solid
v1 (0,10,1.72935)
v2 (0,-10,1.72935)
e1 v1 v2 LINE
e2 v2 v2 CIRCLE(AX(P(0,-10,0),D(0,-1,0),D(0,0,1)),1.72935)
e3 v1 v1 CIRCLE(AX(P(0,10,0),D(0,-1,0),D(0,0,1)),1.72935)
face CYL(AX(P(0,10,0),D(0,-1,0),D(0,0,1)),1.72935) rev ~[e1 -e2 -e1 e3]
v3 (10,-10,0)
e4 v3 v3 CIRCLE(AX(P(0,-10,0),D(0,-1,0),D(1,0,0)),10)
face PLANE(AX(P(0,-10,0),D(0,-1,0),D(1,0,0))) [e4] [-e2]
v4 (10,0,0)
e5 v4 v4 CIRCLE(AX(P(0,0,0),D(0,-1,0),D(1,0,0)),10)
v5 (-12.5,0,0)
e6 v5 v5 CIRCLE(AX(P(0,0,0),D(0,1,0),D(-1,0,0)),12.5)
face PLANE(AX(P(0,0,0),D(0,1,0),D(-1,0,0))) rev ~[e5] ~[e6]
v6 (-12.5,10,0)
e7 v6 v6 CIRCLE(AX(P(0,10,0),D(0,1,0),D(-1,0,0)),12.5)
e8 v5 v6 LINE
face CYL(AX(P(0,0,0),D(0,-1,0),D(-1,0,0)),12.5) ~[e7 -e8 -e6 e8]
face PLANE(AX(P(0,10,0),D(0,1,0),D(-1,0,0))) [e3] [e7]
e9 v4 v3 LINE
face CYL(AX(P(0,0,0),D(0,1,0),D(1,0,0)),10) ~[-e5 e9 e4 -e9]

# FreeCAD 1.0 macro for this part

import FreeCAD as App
import Part
import Sketcher
Q = App.Units.Quantity

doc = App.newDocument("Part")
body = doc.addObject("PartDesign::Body", "Body")

# Sketch on XZ plane
sketch1 = doc.addObject("Sketcher::SketchObject", "Sketch")
body.addObject(sketch1)
sketch1.AttachmentSupport = (doc.XZ_Plane, [""])
sketch1.MapMode = "FlatFace"
sketch1.addGeometry(Part.Circle(App.Vector(0, 0, 0), App.Vector(0, 0, 1), 12.5), False)
sketch1.addConstraint([
    Sketcher.Constraint("Coincident", 0, 3, -1, 1),
    Sketcher.Constraint("Diameter", 0, Q("25 mm")),
])
pad1 = doc.addObject("PartDesign::Pad", "Pad")
body.addObject(pad1)
pad1.Profile = sketch1
pad1.Length = 10
pad1.Reversed = True

# Sketch on XZ plane
sketch2 = doc.addObject("Sketcher::SketchObject", "Sketch001")
body.addObject(sketch2)
sketch2.AttachmentSupport = (doc.XZ_Plane, [""])
sketch2.MapMode = "FlatFace"
sketch2.addGeometry(Part.Circle(App.Vector(0, 0, 0), App.Vector(0, 0, 1), 10), False)
sketch2.addConstraint([
    Sketcher.Constraint("Coincident", 0, 3, -1, 1),
    Sketcher.Constraint("Diameter", 0, Q("20 mm")),
])
pad2 = doc.addObject("PartDesign::Pad", "Pad001")
body.addObject(pad2)
pad2.Profile = sketch2
pad2.Length = 10

# Sketch on XZ plane
sketch3 = doc.addObject("Sketcher::SketchObject", "Sketch002")
body.addObject(sketch3)
sketch3.AttachmentSupport = (doc.XZ_Plane, [""])
sketch3.MapMode = "FlatFace"
sketch3.AttachmentOffset = App.Placement(App.Vector(0, 0, -10), App.Rotation())
sketch3.addGeometry(Part.Circle(App.Vector(0, 0, 0), App.Vector(0, 0, 1), 1.72935), False)
sketch3.addConstraint([
    Sketcher.Constraint("Coincident", 0, 3, -1, 1),
    Sketcher.Constraint("Diameter", 0, Q("3.4587 mm")),
])
doc.recompute()
hole = doc.addObject("PartDesign::Hole", "Hole")
body.addObject(hole)
hole.Profile = sketch3
hole.ThreadType = "None"
hole.Diameter = 3.4587
hole.DepthType = "ThroughAll"
hole.Reversed = True

doc.recompute()
